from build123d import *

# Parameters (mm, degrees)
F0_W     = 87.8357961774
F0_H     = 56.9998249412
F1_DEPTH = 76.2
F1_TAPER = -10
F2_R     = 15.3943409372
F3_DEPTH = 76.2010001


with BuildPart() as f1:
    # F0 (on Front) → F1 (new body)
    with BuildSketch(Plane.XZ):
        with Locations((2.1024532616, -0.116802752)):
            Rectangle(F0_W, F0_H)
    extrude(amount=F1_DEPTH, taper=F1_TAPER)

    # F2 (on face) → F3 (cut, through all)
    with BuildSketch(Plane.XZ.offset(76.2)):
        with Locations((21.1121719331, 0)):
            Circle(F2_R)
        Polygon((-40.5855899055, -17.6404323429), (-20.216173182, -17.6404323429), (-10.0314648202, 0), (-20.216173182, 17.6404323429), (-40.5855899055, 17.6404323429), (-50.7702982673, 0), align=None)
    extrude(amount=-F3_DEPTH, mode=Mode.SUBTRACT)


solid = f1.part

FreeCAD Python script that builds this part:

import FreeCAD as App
import Part
import Sketcher

V = App.Vector
Q = App.Units.Quantity


def add_polygon(sketch, points):
    """Adds a closed chain of lines whose ends are joined by coincident constraints."""
    first, n = sketch.GeometryCount, len(points)
    for a, b in zip(points, points[1:] + points[:1]):
        sketch.addGeometry(Part.LineSegment(App.Vector(*a, 0), App.Vector(*b, 0)), False)
    for i in range(n):
        sketch.addConstraint(Sketcher.Constraint("Coincident", first + i, 2, first + (i + 1) % n, 1))

doc = App.newDocument("Part")
body = doc.addObject("PartDesign::Body", "Body")

# Sketch on XZ plane
sketch1 = body.newObject("Sketcher::SketchObject", "Sketch")
sketch1.AttachmentSupport = (doc.getObject("XZ_Plane"), [""])
sketch1.MapMode = "FlatFace"
add_polygon(sketch1, [(-42, 28), (-42, -29), (46, -29), (46, 28)])  # lines 0-3
sketch1.addConstraint(Sketcher.Constraint("Vertical", 0))
sketch1.addConstraint(Sketcher.Constraint("Horizontal", 1))
sketch1.addConstraint(Sketcher.Constraint("Vertical", 2))
sketch1.addConstraint(Sketcher.Constraint("Horizontal", 3))
sketch1.addConstraint(Sketcher.Constraint("DistanceX", 1, 1, 1, 2, Q("87.835796 mm")))
sketch1.addConstraint(Sketcher.Constraint("DistanceY", 0, 2, 0, 1, Q("56.999825 mm")))
sketch1.addConstraint(Sketcher.Constraint("DistanceX", -1, 1, 1, 2, Q("46.020351 mm")))
sketch1.addConstraint(Sketcher.Constraint("DistanceY", -1, 1, 2, 2, Q("28.38311 mm")))
pad1 = body.newObject("PartDesign::Pad", "Pad")
pad1.Profile = sketch1
pad1.Length = Q("3 in")
pad1.TaperAngle = 10

# Sketch on XZ plane
sketch2 = body.newObject("Sketcher::SketchObject", "Sketch001")
sketch2.AttachmentSupport = (doc.getObject("XZ_Plane"), [""])
sketch2.MapMode = "FlatFace"
sketch2.AttachmentOffset = App.Placement(V(0, 0, 3 * 25.4), App.Rotation())
sketch2.addGeometry(Part.Circle(V(21, 0, 0), V(0, 0, 1), 15), False)  # 0
add_polygon(sketch2, [(-41, -18), (-20, -18), (-10, 0), (-20, 18), (-41, 18), (-51, 0)])  # lines 1-6
sketch2.addConstraint(Sketcher.Constraint("Horizontal", 1))
sketch2.addConstraint(Sketcher.Constraint("Horizontal", 4))
sketch2.addConstraint(Sketcher.Constraint("Symmetric", 1, 2, 3, 2, -1))
sketch2.addConstraint(Sketcher.Constraint("PointOnObject", 0, 3, -1))
sketch2.addConstraint(Sketcher.Constraint("PointOnObject", 2, 2, -1))
sketch2.addConstraint(Sketcher.Constraint("PointOnObject", 5, 2, -1))
sketch2.addConstraint(Sketcher.Constraint("Parallel", 2, 5))
sketch2.addConstraint(Sketcher.Constraint("Parallel", 3, 6))
sketch2.addConstraint(Sketcher.Constraint("Angle", 2, Q("60 deg")))
sketch2.addConstraint(Sketcher.Constraint("Diameter", 0, Q("30.788682 mm")))
sketch2.addConstraint(Sketcher.Constraint("DistanceX", 5, 2, -1, 1, Q("50.770298 mm")))
sketch2.addConstraint(Sketcher.Constraint("DistanceX", 1, 1, 1, 2, Q("20.369417 mm")))
sketch2.addConstraint(Sketcher.Constraint("DistanceX", -1, 1, 0, 3, Q("21.112172 mm")))
sketch2.addConstraint(Sketcher.Constraint("DistanceX", 4, 2, -1, 1, Q("40.58559 mm")))
pocket1 = body.newObject("PartDesign::Pocket", "Pocket")
pocket1.Profile = sketch2
pocket1.Type = "ThroughAll"

doc.recompute()
